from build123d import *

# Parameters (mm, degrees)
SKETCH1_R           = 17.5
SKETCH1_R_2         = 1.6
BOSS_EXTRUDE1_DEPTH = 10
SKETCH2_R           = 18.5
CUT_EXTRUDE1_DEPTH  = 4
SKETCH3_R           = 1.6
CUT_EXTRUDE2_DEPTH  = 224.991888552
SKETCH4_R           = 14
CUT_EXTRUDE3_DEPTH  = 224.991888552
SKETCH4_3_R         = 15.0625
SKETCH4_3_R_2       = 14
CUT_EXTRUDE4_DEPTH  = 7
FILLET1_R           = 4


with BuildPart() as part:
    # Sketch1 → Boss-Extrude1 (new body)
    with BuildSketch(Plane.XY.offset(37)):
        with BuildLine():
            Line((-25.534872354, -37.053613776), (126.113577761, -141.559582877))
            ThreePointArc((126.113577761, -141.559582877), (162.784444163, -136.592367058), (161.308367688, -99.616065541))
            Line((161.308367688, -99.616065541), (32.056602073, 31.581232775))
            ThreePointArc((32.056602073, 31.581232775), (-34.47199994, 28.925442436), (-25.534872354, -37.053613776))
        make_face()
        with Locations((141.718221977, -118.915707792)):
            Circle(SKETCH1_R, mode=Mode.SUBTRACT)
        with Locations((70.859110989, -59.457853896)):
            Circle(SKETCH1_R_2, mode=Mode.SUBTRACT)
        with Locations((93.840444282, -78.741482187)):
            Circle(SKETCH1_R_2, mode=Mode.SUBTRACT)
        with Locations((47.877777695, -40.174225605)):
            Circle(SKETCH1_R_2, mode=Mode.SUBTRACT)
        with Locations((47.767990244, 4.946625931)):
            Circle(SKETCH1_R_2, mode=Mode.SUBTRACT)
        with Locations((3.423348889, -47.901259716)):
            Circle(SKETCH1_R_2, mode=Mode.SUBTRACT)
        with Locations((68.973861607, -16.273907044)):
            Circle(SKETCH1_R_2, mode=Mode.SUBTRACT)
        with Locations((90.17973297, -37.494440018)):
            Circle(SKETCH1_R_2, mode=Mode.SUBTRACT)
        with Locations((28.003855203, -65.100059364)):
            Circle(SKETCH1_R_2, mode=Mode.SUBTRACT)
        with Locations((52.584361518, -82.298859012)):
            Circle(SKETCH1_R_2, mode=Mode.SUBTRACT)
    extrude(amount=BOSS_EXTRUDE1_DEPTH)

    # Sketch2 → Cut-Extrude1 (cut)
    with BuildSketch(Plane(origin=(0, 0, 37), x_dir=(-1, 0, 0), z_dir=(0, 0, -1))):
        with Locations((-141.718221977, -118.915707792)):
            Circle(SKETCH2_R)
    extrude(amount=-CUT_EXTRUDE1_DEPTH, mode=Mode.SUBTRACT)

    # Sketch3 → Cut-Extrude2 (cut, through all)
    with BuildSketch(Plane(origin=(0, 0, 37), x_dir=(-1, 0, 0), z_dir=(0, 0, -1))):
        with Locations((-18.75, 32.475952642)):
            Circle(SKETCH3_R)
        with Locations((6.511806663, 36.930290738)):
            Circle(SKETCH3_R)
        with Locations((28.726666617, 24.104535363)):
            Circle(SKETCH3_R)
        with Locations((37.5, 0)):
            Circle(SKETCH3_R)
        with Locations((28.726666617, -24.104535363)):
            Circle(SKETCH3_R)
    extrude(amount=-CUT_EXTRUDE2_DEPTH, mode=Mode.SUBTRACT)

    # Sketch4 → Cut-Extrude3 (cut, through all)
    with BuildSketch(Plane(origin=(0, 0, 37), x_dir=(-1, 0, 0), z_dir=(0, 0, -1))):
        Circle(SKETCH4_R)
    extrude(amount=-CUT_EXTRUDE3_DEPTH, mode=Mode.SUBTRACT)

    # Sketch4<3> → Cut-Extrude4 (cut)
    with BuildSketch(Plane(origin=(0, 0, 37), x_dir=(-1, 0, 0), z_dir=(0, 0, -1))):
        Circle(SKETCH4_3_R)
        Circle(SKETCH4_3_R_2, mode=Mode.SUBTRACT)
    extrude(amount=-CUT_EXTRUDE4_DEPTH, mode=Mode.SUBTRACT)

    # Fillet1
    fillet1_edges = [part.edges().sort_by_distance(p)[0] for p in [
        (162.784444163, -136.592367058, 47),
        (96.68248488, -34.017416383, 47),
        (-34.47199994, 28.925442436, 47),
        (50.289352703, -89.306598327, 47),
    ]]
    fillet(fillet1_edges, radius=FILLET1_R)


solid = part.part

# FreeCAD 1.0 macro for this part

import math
import FreeCAD as App
import Part
import Sketcher

V = App.Vector


def edges_at(feature, points):
    """Names of the edges that pass closest to the given points."""
    edges = feature.Shape.Edges
    near = lambda p: min(range(len(edges)), key=lambda i: edges[i].distToShape(Part.Vertex(*p))[0])
    return sorted({f"Edge{near(p) + 1}" for p in points})

doc = App.newDocument("Part")
body = doc.addObject("PartDesign::Body", "Body")

# Sketch on XY plane
sketch1 = body.newObject("Sketcher::SketchObject", "Sketch")
sketch1.AttachmentSupport = (doc.getObject("XY_Plane"), [""])
sketch1.MapMode = "FlatFace"
sketch1.AttachmentOffset = App.Placement(V(0, 0, 37), App.Rotation())
sketch1.addGeometry([
    Part.LineSegment(V(-25.534872, -37.053614, 0), V(126.113578, -141.559583, 0)),  # 0
    Part.ArcOfCircle(Part.Circle(V(141.718222, -118.915708, 0), V(0, 0, 1), 27.5), math.radians(-124.572013), math.radians(44.572013)),  # 1
    Part.LineSegment(V(161.308368, -99.616066, 0), V(32.056602, 31.581233, 0)),  # 2
    Part.ArcOfCircle(Part.Circle(V(0, 0, 0), V(0, 0, 1), 45), math.radians(44.572013), math.radians(235.427987)),  # 3
    Part.Circle(V(28.003855, -65.100059, 0), V(0, 0, 1), 1.6),  # 4
    Part.Circle(V(52.584362, -82.298859, 0), V(0, 0, 1), 1.6),  # 5
    Part.Circle(V(141.718222, -118.915708, 0), V(0, 0, 1), 17.5),  # 6
    Part.Circle(V(93.840444, -78.741482, 0), V(0, 0, 1), 1.6),  # 7
    Part.Circle(V(3.423349, -47.90126, 0), V(0, 0, 1), 1.6),  # 8
    Part.Circle(V(70.859111, -59.457854, 0), V(0, 0, 1), 1.6),  # 9
    Part.Circle(V(47.877778, -40.174226, 0), V(0, 0, 1), 1.6),  # 10
    Part.Circle(V(68.973862, -16.273907, 0), V(0, 0, 1), 1.6),  # 11
    Part.Circle(V(47.76799, 4.946626, 0), V(0, 0, 1), 1.6),  # 12
    Part.Circle(V(90.179733, -37.49444, 0), V(0, 0, 1), 1.6),  # 13
], False)
sketch1.addConstraint([
    Sketcher.Constraint("Tangent", 0, 2, 1, 1),
    Sketcher.Constraint("Tangent", 1, 2, 2, 1),
    Sketcher.Constraint("Tangent", 2, 2, 3, 1),
    Sketcher.Constraint("Tangent", 3, 2, 0, 1),
    Sketcher.Constraint("Coincident", 3, 3, -1, 1),
    Sketcher.Constraint("Coincident", 6, 3, 1, 3),
    Sketcher.Constraint("Equal", 4, 5),
    Sketcher.Constraint("Equal", 5, 7),
    Sketcher.Constraint("Equal", 7, 8),
    Sketcher.Constraint("Equal", 8, 9),
    Sketcher.Constraint("Equal", 9, 10),
    Sketcher.Constraint("Equal", 10, 11),
    Sketcher.Constraint("Equal", 11, 12),
    Sketcher.Constraint("Equal", 12, 13),
    Sketcher.Constraint("Diameter", 6, 35.0),
    Sketcher.Constraint("Radius", 3, 45.0),
    Sketcher.Constraint("Diameter", 4, 3.2),
    Sketcher.Constraint("Radius", 1, 27.5),
    Sketcher.Constraint("DistanceY", 5, 3, 4, 3, 17.1988),
    Sketcher.Constraint("DistanceY", 4, 3, 8, 3, 17.1988),
    Sketcher.Constraint("DistanceX", 5, 3, 11, 3, 16.3895),
    Sketcher.Constraint("DistanceY", 0, 2, 7, 3, 62.818101),
    Sketcher.Constraint("DistanceX", -1, 1, 1, 3, 141.718222),
    Sketcher.Constraint("DistanceY", 4, 3, -1, 1, 65.100059),
    Sketcher.Constraint("DistanceX", -1, 1, 5, 3, 52.584362),
    Sketcher.Constraint("DistanceX", -1, 1, 8, 3, 3.423349),
    Sketcher.Constraint("DistanceX", -1, 1, 9, 3, 70.859111),
    Sketcher.Constraint("DistanceX", -1, 1, 12, 3, 47.76799),
    Sketcher.Constraint("DistanceY", 13, 3, -1, 1, 37.49444),
    Sketcher.Constraint("DistanceY", 1, 3, 4, 3, 53.815648),
    Sketcher.Constraint("DistanceX", 4, 3, 7, 3, 65.836589),
    Sketcher.Constraint("DistanceY", 7, 3, 9, 3, 19.283628),
    Sketcher.Constraint("DistanceY", 9, 3, 10, 3, 19.283628),
    Sketcher.Constraint("DistanceX", 8, 3, 10, 3, 44.454429),
    Sketcher.Constraint("DistanceY", 10, 3, 11, 3, 23.900319),
    Sketcher.Constraint("DistanceY", 10, 3, 12, 3, 45.120852),
    Sketcher.Constraint("DistanceX", 9, 3, 13, 3, 19.320622),
    Sketcher.Constraint("DistanceX", 13, 3, 7, 3, 3.660711),
])
pad1 = body.newObject("PartDesign::Pad", "Pad")
pad1.Profile = sketch1
pad1.Length = 10

# Sketch on XY plane
sketch2 = body.newObject("Sketcher::SketchObject", "Sketch001")
sketch2.AttachmentSupport = (doc.getObject("XY_Plane"), [""])
sketch2.MapMode = "FlatFace"
sketch2.AttachmentOffset = App.Placement(V(0, 0, 37), App.Rotation())
sketch2.addGeometry(Part.Circle(V(141.718222, -118.915708, 0), V(0, 0, 1), 18.5), False)
sketch2.addConstraint([
    Sketcher.Constraint("Diameter", 0, 37.0),
    Sketcher.Constraint("DistanceX", -1, 1, 0, 3, 141.718222),
    Sketcher.Constraint("DistanceY", 0, 3, -1, 1, 118.915708),
])
pocket1 = body.newObject("PartDesign::Pocket", "Pocket")
pocket1.Profile = sketch2
pocket1.Length = 4
pocket1.Reversed = True

# Sketch on XY plane
sketch3 = body.newObject("Sketcher::SketchObject", "Sketch002")
sketch3.AttachmentSupport = (doc.getObject("XY_Plane"), [""])
sketch3.MapMode = "FlatFace"
sketch3.AttachmentOffset = App.Placement(V(0, 0, 37), App.Rotation())
sketch3.addGeometry([
    Part.Circle(V(18.75, 32.475953, 0), V(0, 0, 1), 1.6),  # 0
    Part.Circle(V(-6.511807, 36.930291, 0), V(0, 0, 1), 1.6),  # 1
    Part.Circle(V(-28.726667, 24.104535, 0), V(0, 0, 1), 1.6),  # 2
    Part.Circle(V(-37.5, 0, 0), V(0, 0, 1), 1.6),  # 3
    Part.Circle(V(-28.726667, -24.104535, 0), V(0, 0, 1), 1.6),  # 4
], False)
sketch3.addConstraint([
    Sketcher.Constraint("Equal", 0, 1),
    Sketcher.Constraint("Equal", 1, 2),
    Sketcher.Constraint("Equal", 2, 3),
    Sketcher.Constraint("Equal", 3, 4),
    Sketcher.Constraint("Symmetric", 2, 3, 4, 3, -1),
    Sketcher.Constraint("PointOnObject", 3, 3, -1),
    Sketcher.Constraint("Diameter", 0, 3.2),
    Sketcher.Constraint("DistanceX", 3, 3, -1, 1, 37.5),
    Sketcher.Constraint("DistanceX", -1, 1, 0, 3, 18.75),
    Sketcher.Constraint("DistanceY", -1, 1, 1, 3, 36.930291),
    Sketcher.Constraint("DistanceY", 0, 3, 1, 3, 4.454338),
    Sketcher.Constraint("DistanceX", 2, 3, 1, 3, 22.21486),
    Sketcher.Constraint("DistanceY", 4, 3, 2, 3, 48.209071),
    Sketcher.Constraint("DistanceX", 1, 3, -1, 1, 6.511807),
])
pocket2 = body.newObject("PartDesign::Pocket", "Pocket001")
pocket2.Profile = sketch3
pocket2.Type = "ThroughAll"
pocket2.Reversed = True

# Sketch on XY plane
sketch4 = body.newObject("Sketcher::SketchObject", "Sketch003")
sketch4.AttachmentSupport = (doc.getObject("XY_Plane"), [""])
sketch4.MapMode = "FlatFace"
sketch4.AttachmentOffset = App.Placement(V(0, 0, 37), App.Rotation())
sketch4.addGeometry(Part.Circle(V(0, 0, 0), V(0, 0, 1), 14), False)
sketch4.addConstraint([
    Sketcher.Constraint("Coincident", 0, 3, -1, 1),
    Sketcher.Constraint("Diameter", 0, 28.0),
])
pocket3 = body.newObject("PartDesign::Pocket", "Pocket002")
pocket3.Profile = sketch4
pocket3.Type = "ThroughAll"
pocket3.Reversed = True

# Sketch on XY plane
sketch5 = body.newObject("Sketcher::SketchObject", "Sketch004")
sketch5.AttachmentSupport = (doc.getObject("XY_Plane"), [""])
sketch5.MapMode = "FlatFace"
sketch5.AttachmentOffset = App.Placement(V(0, 0, 37), App.Rotation())
sketch5.addGeometry([
    Part.Circle(V(0, 0, 0), V(0, 0, 1), 15.0625),
    Part.Circle(V(0, 0, 0), V(0, 0, 1), 14),
], False)
sketch5.addConstraint([
    Sketcher.Constraint("Coincident", 0, 3, -1, 1),
    Sketcher.Constraint("Coincident", 1, 3, -1, 1),
    Sketcher.Constraint("Diameter", 1, 28.0),
    Sketcher.Constraint("Diameter", 0, 30.125),
])
pocket4 = body.newObject("PartDesign::Pocket", "Pocket003")
pocket4.Profile = sketch5
pocket4.Length = 7
pocket4.Reversed = True
doc.recompute()

fillet = body.newObject("PartDesign::Fillet", "Fillet")
fillet.Base = (pocket4, edges_at(pocket4, [
    (162.784, -136.592, 47),
    (96.682, -34.017, 47),
    (-34.472, 28.925, 47),
    (50.289, -89.307, 47),
]))
fillet.Radius = 4

doc.recompute()
